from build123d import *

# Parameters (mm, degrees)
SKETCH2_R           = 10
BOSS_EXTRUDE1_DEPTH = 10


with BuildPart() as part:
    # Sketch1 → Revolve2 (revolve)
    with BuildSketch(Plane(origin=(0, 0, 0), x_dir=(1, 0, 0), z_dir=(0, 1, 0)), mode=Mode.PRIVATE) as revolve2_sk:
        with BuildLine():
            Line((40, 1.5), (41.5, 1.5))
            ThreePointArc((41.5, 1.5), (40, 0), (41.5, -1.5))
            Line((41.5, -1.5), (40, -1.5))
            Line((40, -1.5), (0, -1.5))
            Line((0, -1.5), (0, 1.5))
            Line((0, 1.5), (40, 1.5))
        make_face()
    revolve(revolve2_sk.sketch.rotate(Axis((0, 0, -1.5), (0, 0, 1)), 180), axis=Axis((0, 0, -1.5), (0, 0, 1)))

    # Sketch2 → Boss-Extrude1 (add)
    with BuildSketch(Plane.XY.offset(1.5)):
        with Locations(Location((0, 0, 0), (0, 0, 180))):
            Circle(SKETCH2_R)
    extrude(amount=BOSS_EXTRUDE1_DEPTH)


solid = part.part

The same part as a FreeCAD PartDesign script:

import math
import FreeCAD as App
import Part
import Sketcher

doc = App.newDocument("Part")
body = doc.addObject("PartDesign::Body", "Body")

# Sketch on XZ plane
sketch1 = body.newObject("Sketcher::SketchObject", "Sketch")
sketch1.AttachmentSupport = (doc.getObject("XZ_Plane"), [""])
sketch1.MapMode = "FlatFace"
sketch1.addGeometry(Part.ArcOfCircle(Part.Circle(App.Vector(41.5, 0, 0), App.Vector(0, 0, 1), 1.5), math.radians(90), math.radians(270)), False)
sketch1.addGeometry(Part.LineSegment(App.Vector(41.5, -1.5, 0), App.Vector(0, -1.5, 0)), False)
sketch1.addGeometry(Part.LineSegment(App.Vector(0, -1.5, 0), App.Vector(0, 1.5, 0)), False)
sketch1.addGeometry(Part.LineSegment(App.Vector(0, 1.5, 0), App.Vector(41.5, 1.5, 0)), False)
sketch1.addConstraint(Sketcher.Constraint("Tangent", 0, 2, 1, 1))
sketch1.addConstraint(Sketcher.Constraint("Coincident", 1, 2, 2, 1))
sketch1.addConstraint(Sketcher.Constraint("Coincident", 2, 2, 3, 1))
sketch1.addConstraint(Sketcher.Constraint("Tangent", 3, 2, 0, 1))
sketch1.addConstraint(Sketcher.Constraint("Horizontal", 1))
sketch1.addConstraint(Sketcher.Constraint("Vertical", 2))
sketch1.addConstraint(Sketcher.Constraint("Horizontal", 3))
sketch1.addConstraint(Sketcher.Constraint("Symmetric", 1, 2, 2, 2, -1, 1))
sketch1.addConstraint(Sketcher.Constraint("Radius", 0, 1.5))
sketch1.addConstraint(Sketcher.Constraint("DistanceX", 1, 2, 1, 1, 41.5))
revolution = body.newObject("PartDesign::Revolution", "Revolution")
revolution.Profile = sketch1
revolution.ReferenceAxis = (sketch1, ["V_Axis"])
revolution.Angle = 360

# Sketch on XY plane
sketch2 = body.newObject("Sketcher::SketchObject", "Sketch001")
sketch2.AttachmentSupport = (doc.getObject("XY_Plane"), [""])
sketch2.MapMode = "FlatFace"
sketch2.AttachmentOffset = App.Placement(App.Vector(0, 0, 1.5), App.Rotation())
sketch2.addGeometry(Part.Circle(App.Vector(0, 0, 0), App.Vector(0, 0, 1), 10), False)
sketch2.addConstraint(Sketcher.Constraint("Coincident", 0, 3, -1, 1))
sketch2.addConstraint(Sketcher.Constraint("Diameter", 0, 20.0))
pad1 = body.newObject("PartDesign::Pad", "Pad")
pad1.Profile = sketch2
pad1.Length = 10

doc.recompute()
